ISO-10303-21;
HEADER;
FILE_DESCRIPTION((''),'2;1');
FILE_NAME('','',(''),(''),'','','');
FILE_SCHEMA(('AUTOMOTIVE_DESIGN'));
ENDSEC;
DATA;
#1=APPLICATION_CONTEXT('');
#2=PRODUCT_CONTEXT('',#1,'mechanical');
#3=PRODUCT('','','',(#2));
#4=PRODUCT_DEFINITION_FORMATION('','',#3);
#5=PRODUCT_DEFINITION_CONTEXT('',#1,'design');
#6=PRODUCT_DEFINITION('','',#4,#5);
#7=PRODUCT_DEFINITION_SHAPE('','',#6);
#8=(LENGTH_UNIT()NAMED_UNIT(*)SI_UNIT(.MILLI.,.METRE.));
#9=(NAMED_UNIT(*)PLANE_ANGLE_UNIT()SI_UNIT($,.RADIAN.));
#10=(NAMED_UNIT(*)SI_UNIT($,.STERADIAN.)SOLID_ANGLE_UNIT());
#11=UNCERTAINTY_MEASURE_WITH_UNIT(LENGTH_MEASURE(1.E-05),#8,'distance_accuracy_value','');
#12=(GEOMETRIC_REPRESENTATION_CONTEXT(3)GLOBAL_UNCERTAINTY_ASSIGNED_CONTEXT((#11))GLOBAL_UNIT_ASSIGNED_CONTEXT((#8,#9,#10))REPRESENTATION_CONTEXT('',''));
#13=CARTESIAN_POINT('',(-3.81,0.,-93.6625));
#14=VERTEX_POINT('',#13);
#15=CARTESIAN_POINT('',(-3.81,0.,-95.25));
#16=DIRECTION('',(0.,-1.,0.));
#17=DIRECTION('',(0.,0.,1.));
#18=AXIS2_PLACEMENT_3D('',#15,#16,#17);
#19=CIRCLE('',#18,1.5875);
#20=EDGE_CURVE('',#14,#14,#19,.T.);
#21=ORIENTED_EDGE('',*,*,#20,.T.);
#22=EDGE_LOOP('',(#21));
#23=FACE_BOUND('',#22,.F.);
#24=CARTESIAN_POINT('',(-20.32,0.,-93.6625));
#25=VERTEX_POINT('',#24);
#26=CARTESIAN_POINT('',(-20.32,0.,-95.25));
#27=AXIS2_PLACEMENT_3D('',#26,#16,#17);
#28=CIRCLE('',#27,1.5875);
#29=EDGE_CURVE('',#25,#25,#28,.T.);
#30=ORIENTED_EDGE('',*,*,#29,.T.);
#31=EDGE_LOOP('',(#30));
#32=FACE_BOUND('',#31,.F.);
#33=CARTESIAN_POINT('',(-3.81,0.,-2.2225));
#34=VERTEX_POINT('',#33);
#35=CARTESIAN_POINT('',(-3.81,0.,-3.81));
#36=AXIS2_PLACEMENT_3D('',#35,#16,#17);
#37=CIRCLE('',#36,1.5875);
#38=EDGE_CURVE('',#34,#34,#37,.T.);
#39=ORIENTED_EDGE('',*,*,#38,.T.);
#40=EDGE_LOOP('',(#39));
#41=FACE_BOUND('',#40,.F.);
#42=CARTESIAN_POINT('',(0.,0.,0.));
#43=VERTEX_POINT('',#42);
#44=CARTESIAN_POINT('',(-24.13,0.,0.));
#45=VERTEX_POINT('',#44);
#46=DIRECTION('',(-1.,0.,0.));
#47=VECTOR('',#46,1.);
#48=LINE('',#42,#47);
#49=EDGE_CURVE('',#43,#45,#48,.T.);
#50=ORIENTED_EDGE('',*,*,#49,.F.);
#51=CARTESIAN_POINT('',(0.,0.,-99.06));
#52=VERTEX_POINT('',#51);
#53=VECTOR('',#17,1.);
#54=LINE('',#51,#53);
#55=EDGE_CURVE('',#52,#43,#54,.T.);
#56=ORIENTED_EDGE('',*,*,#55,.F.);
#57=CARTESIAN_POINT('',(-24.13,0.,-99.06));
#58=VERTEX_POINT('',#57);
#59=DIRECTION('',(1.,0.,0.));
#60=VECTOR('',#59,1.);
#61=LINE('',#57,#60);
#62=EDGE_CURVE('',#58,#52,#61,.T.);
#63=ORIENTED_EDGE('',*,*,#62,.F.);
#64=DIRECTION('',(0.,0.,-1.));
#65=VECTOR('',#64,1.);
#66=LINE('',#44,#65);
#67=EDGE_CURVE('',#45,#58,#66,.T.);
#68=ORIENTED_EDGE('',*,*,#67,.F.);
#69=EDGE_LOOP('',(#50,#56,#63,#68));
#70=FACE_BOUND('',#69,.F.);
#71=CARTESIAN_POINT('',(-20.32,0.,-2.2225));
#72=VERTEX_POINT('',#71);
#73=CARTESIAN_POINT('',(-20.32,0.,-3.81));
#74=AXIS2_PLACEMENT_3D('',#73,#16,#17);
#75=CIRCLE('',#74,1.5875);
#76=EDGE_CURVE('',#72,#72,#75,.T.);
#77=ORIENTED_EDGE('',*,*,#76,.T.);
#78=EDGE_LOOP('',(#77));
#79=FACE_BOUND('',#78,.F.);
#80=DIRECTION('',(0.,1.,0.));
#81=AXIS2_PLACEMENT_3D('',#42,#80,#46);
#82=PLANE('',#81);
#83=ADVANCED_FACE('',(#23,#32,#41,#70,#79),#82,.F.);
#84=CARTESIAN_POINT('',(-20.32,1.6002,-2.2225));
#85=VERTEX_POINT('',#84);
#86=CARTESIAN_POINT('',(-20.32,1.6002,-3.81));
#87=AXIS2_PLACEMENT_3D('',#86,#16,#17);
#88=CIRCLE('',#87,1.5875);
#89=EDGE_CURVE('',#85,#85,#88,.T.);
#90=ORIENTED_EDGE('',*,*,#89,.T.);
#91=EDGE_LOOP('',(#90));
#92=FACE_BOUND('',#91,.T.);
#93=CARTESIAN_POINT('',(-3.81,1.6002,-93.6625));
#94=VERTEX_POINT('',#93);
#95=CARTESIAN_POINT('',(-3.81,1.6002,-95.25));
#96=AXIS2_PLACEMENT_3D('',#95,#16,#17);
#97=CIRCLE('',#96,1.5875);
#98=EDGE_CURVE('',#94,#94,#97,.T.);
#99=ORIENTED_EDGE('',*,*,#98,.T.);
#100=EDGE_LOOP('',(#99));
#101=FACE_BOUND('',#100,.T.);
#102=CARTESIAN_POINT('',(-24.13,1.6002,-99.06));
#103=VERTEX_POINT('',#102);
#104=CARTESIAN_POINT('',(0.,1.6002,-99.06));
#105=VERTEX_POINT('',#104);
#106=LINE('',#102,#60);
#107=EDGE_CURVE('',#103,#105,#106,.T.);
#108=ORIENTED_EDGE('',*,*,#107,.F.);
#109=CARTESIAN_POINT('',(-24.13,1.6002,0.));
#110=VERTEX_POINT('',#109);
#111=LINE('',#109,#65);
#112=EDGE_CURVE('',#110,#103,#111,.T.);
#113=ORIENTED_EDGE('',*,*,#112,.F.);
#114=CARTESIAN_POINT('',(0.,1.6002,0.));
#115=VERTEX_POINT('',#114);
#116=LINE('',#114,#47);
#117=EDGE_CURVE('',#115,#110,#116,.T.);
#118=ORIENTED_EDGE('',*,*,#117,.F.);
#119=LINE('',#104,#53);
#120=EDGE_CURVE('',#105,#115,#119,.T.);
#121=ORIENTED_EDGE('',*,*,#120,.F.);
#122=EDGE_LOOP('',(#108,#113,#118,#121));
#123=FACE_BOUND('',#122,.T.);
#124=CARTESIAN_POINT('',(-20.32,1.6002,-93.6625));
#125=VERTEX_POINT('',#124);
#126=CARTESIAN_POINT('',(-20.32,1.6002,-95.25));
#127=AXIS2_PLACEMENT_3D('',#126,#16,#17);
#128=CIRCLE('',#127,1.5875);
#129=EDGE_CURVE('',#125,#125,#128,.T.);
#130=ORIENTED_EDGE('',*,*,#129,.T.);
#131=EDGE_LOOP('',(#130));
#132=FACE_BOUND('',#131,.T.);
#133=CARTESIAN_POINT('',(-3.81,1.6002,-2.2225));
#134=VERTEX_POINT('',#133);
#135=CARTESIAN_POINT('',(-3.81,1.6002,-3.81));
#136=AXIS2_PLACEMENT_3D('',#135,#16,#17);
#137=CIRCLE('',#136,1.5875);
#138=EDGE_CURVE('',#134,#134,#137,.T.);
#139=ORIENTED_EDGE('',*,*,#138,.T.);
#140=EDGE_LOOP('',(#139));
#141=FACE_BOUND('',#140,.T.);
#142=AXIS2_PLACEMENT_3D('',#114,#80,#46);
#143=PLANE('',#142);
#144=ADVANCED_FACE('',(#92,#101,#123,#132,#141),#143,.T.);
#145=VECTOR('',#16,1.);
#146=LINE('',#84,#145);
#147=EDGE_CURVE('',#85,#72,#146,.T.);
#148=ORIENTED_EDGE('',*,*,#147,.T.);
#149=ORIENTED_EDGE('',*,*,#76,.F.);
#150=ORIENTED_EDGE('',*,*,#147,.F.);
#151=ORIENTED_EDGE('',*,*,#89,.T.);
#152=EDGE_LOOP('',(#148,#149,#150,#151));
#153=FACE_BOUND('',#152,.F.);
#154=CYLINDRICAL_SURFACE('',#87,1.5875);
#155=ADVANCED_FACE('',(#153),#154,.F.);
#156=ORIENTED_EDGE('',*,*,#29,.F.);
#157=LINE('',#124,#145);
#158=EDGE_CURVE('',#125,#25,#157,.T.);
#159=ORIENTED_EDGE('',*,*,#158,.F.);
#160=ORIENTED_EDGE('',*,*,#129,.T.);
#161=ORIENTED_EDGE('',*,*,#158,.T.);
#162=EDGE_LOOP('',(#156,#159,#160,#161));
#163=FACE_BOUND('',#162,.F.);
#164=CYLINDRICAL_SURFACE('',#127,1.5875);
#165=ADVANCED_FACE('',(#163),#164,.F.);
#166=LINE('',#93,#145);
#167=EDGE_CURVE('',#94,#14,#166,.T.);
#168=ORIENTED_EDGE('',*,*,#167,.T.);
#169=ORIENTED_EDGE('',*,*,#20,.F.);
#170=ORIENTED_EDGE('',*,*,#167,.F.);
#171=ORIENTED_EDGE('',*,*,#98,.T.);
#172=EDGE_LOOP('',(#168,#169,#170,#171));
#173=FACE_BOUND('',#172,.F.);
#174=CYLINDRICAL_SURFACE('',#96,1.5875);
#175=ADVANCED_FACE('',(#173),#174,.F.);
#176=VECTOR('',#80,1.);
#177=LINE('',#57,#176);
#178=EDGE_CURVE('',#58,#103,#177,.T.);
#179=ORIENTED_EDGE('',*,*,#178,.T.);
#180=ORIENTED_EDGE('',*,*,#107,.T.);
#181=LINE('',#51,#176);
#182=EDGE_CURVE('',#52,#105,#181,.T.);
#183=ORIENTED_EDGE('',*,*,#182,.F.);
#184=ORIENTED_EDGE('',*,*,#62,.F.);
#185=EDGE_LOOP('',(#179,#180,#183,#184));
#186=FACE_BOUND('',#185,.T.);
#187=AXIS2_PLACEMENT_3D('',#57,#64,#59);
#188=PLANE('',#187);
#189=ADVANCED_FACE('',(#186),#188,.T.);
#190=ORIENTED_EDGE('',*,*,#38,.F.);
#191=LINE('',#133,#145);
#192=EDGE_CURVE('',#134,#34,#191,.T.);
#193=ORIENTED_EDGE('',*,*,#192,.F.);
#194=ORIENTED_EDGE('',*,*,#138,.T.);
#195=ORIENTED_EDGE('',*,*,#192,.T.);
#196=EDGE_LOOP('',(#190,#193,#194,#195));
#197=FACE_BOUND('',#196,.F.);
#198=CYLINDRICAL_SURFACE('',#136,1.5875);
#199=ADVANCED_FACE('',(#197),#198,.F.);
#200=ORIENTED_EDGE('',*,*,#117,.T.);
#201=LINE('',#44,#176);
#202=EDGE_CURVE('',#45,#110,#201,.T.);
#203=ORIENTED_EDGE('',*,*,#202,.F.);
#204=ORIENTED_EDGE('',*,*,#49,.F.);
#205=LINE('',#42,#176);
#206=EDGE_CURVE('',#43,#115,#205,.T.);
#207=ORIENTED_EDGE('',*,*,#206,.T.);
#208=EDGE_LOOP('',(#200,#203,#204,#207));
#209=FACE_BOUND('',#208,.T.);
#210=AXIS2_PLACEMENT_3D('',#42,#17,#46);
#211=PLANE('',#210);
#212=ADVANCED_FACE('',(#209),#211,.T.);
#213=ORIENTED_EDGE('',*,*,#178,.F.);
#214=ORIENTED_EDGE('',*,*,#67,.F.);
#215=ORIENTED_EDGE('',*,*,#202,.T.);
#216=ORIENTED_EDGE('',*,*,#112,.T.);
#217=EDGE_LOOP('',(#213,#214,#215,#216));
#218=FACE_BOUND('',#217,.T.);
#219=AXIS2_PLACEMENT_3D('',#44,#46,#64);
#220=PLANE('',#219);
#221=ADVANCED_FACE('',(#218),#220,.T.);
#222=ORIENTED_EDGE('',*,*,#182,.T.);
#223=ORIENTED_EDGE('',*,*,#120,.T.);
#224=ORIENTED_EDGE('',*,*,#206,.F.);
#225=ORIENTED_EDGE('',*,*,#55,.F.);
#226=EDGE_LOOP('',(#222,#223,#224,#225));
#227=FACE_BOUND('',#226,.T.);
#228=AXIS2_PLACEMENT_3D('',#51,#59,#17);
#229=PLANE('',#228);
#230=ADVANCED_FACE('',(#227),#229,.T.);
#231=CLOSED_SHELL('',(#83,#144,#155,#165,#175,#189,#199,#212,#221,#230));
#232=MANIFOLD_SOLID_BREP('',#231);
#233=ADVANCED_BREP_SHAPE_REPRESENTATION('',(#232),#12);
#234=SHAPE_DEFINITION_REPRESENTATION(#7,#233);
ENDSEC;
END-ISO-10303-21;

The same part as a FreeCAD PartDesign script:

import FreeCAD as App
import Part
import Sketcher
Q = App.Units.Quantity

doc = App.newDocument("Part")
body = doc.addObject("PartDesign::Body", "Body")

sketch1 = doc.addObject("Sketcher::SketchObject", "Sketch")
body.addObject(sketch1)
sketch1.AttachmentSupport = (doc.XZ_Plane, [""])
sketch1.MapMode = "FlatFace"
sketch1.addGeometry(Part.LineSegment(App.Vector(-24, 0, 0), App.Vector(0, 0, 0)), False)
sketch1.addGeometry(Part.LineSegment(App.Vector(0, 0, 0), App.Vector(0, -99, 0)), False)
sketch1.addGeometry(Part.LineSegment(App.Vector(0, -99, 0), App.Vector(-24, -99, 0)), False)
sketch1.addGeometry(Part.LineSegment(App.Vector(-24, -99, 0), App.Vector(-24, 0, 0)), False)
sketch1.addConstraint(Sketcher.Constraint("Coincident", 0, 2, 1, 1))
sketch1.addConstraint(Sketcher.Constraint("Coincident", 1, 2, 2, 1))
sketch1.addConstraint(Sketcher.Constraint("Coincident", 2, 2, 3, 1))
sketch1.addConstraint(Sketcher.Constraint("Coincident", 3, 2, 0, 1))
sketch1.addConstraint(Sketcher.Constraint("Horizontal", 0))
sketch1.addConstraint(Sketcher.Constraint("Vertical", 1))
sketch1.addConstraint(Sketcher.Constraint("Horizontal", 2))
sketch1.addConstraint(Sketcher.Constraint("Vertical", 3))
sketch1.addConstraint(Sketcher.Constraint("Coincident", 0, 2, -1, 1))
sketch1.addConstraint(Sketcher.Constraint("DistanceY", 1, 2, 1, 1, Q("3.9 in")))
sketch1.addConstraint(Sketcher.Constraint("DistanceX", 0, 1, 0, 2, Q("0.95 in")))
pad1 = doc.addObject("PartDesign::Pad", "Pad")
body.addObject(pad1)
pad1.Profile = sketch1
pad1.Length = Q("0.063 in")
pad1.Reversed = True

sketch2 = doc.addObject("Sketcher::SketchObject", "Sketch001")
body.addObject(sketch2)
sketch2.AttachmentSupport = (doc.XZ_Plane, [""])
sketch2.MapMode = "FlatFace"
sketch2.AttachmentOffset = App.Placement(App.Vector(0, 0, -0.063 * 25.4), App.Rotation())
sketch2.addGeometry(Part.Circle(App.Vector(-20.3, -3.8, 0), App.Vector(0, 0, 1), 1.6), False)
sketch2.addGeometry(Part.Circle(App.Vector(-3.8, -3.8, 0), App.Vector(0, 0, 1), 1.6), False)
sketch2.addGeometry(Part.Circle(App.Vector(-3.8, -95.2, 0), App.Vector(0, 0, 1), 1.6), False)
sketch2.addGeometry(Part.Circle(App.Vector(-20.3, -95.2, 0), App.Vector(0, 0, 1), 1.6), False)
sketch2.addConstraint(Sketcher.Constraint("Equal", 0, 1))
sketch2.addConstraint(Sketcher.Constraint("Equal", 1, 2))
sketch2.addConstraint(Sketcher.Constraint("Equal", 2, 3))
sketch2.addConstraint(Sketcher.Constraint("Horizontal", 0, 3, 1, 3))
sketch2.addConstraint(Sketcher.Constraint("Horizontal", 2, 3, 3, 3))
sketch2.addConstraint(Sketcher.Constraint("Vertical", 1, 3, 2, 3))
sketch2.addConstraint(Sketcher.Constraint("Vertical", 0, 3, 3, 3))
sketch2.addConstraint(Sketcher.Constraint("Diameter", 0, Q("0.125 in")))
sketch2.addConstraint(Sketcher.Constraint("DistanceX", 0, 3, -1, 1, Q("0.8 in")))
sketch2.addConstraint(Sketcher.Constraint("DistanceY", 2, 3, 1, 3, Q("3.6 in")))
sketch2.addConstraint(Sketcher.Constraint("DistanceY", 0, 3, -1, 1, Q("0.15 in")))
sketch2.addConstraint(Sketcher.Constraint("DistanceX", 1, 3, -1, 1, Q("0.15 in")))
doc.recompute()
hole = doc.addObject("PartDesign::Hole", "Hole")
body.addObject(hole)
hole.Profile = sketch2
hole.ThreadType = "None"
hole.Diameter = Q("0.125 in")
hole.DepthType = "Dimension"
hole.Depth = Q("1 in")
hole.DrillPoint = "Angled"
hole.DrillPointAngle = 118
hole.Reversed = True

doc.recompute()
